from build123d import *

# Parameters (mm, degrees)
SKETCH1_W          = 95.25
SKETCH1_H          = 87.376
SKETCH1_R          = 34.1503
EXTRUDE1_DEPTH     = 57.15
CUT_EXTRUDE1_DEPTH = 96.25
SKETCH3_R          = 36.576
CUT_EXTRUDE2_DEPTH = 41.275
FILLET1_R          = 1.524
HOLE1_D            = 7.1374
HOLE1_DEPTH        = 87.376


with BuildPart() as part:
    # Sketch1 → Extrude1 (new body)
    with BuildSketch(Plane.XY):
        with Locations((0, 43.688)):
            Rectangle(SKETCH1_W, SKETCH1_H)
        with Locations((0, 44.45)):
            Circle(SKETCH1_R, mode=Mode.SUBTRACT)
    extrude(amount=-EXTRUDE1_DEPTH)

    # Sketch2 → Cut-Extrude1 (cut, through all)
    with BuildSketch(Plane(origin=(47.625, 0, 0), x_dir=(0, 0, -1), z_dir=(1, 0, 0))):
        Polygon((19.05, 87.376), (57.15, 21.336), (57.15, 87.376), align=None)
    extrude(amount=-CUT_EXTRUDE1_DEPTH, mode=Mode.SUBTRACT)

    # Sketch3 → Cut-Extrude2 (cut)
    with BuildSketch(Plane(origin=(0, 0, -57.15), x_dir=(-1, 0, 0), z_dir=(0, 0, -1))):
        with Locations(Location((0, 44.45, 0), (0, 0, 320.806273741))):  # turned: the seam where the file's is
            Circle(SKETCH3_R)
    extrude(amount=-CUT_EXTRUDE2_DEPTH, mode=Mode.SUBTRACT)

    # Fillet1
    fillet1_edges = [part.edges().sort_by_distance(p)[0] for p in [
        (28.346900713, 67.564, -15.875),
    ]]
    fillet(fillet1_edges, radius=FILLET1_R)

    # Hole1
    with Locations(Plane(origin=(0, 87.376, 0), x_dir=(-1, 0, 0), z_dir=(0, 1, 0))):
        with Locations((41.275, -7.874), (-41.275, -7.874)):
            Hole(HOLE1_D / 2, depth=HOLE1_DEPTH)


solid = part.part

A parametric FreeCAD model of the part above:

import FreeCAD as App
import Part
import Sketcher
Q = App.Units.Quantity


def edges_at(feature, points):
    """Names of the edges that pass closest to the given points."""
    edges = feature.Shape.Edges
    near = lambda p: min(range(len(edges)), key=lambda i: edges[i].distToShape(Part.Vertex(*p))[0])
    return sorted({f"Edge{near(p) + 1}" for p in points})

doc = App.newDocument("Part")
body = doc.addObject("PartDesign::Body", "Body")

sketch1 = body.newObject("Sketcher::SketchObject", "Sketch")
sketch1.AttachmentSupport = (doc.getObject("XY_Plane"), [""])
sketch1.MapMode = "FlatFace"
sketch1.addGeometry(Part.LineSegment(App.Vector(-48, 87, 0), App.Vector(-48, 0, 0)), False)
sketch1.addGeometry(Part.LineSegment(App.Vector(-48, 0, 0), App.Vector(48, 0, 0)), False)
sketch1.addGeometry(Part.LineSegment(App.Vector(48, 0, 0), App.Vector(48, 87, 0)), False)
sketch1.addGeometry(Part.LineSegment(App.Vector(48, 87, 0), App.Vector(-48, 87, 0)), False)
sketch1.addGeometry(Part.Circle(App.Vector(0, 44, 0), App.Vector(0, 0, 1), 34), False)
sketch1.addConstraint(Sketcher.Constraint("Coincident", 0, 2, 1, 1))
sketch1.addConstraint(Sketcher.Constraint("Coincident", 1, 2, 2, 1))
sketch1.addConstraint(Sketcher.Constraint("Coincident", 2, 2, 3, 1))
sketch1.addConstraint(Sketcher.Constraint("Coincident", 3, 2, 0, 1))
sketch1.addConstraint(Sketcher.Constraint("Vertical", 0))
sketch1.addConstraint(Sketcher.Constraint("Horizontal", 1))
sketch1.addConstraint(Sketcher.Constraint("Vertical", 2))
sketch1.addConstraint(Sketcher.Constraint("Horizontal", 3))
sketch1.addConstraint(Sketcher.Constraint("Symmetric", 0, 2, 1, 2, -1, 1))
sketch1.addConstraint(Sketcher.Constraint("PointOnObject", 4, 3, -2))
sketch1.addConstraint(Sketcher.Constraint("Diameter", 4, Q("2.689 in")))
sketch1.addConstraint(Sketcher.Constraint("DistanceX", 1, 1, 1, 2, Q("3.75 in")))
sketch1.addConstraint(Sketcher.Constraint("DistanceY", 0, 2, 0, 1, Q("3.44 in")))
sketch1.addConstraint(Sketcher.Constraint("DistanceY", -1, 1, 4, 3, Q("1.75 in")))
pad1 = body.newObject("PartDesign::Pad", "Pad")
pad1.Profile = sketch1
pad1.Length = Q("2.25 in")
pad1.Reversed = True

sketch2 = body.newObject("Sketcher::SketchObject", "Sketch001")
sketch2.AttachmentSupport = (doc.getObject("YZ_Plane"), [""])
sketch2.MapMode = "FlatFace"
sketch2.AttachmentOffset = App.Placement(App.Vector(0, 0, 1.875 * 25.4), App.Rotation())
sketch2.addGeometry(Part.LineSegment(App.Vector(87, -19, 0), App.Vector(21, -57, 0)), False)
sketch2.addGeometry(Part.LineSegment(App.Vector(21, -57, 0), App.Vector(87, -57, 0)), False)
sketch2.addGeometry(Part.LineSegment(App.Vector(87, -57, 0), App.Vector(87, -19, 0)), False)
sketch2.addConstraint(Sketcher.Constraint("Coincident", 0, 2, 1, 1))
sketch2.addConstraint(Sketcher.Constraint("Coincident", 1, 2, 2, 1))
sketch2.addConstraint(Sketcher.Constraint("Coincident", 2, 2, 0, 1))
sketch2.addConstraint(Sketcher.Constraint("Horizontal", 1))
sketch2.addConstraint(Sketcher.Constraint("Vertical", 2))
sketch2.addConstraint(Sketcher.Constraint("DistanceX", 1, 1, 1, 2, Q("2.6 in")))
sketch2.addConstraint(Sketcher.Constraint("DistanceY", 2, 1, 2, 2, Q("1.5 in")))
sketch2.addConstraint(Sketcher.Constraint("DistanceX", -1, 1, 0, 2, Q("0.84 in")))
sketch2.addConstraint(Sketcher.Constraint("DistanceY", 0, 2, -1, 1, Q("2.25 in")))
pocket1 = body.newObject("PartDesign::Pocket", "Pocket")
pocket1.Profile = sketch2
pocket1.Type = "ThroughAll"

sketch3 = body.newObject("Sketcher::SketchObject", "Sketch002")
sketch3.AttachmentSupport = (doc.getObject("XY_Plane"), [""])
sketch3.MapMode = "FlatFace"
sketch3.AttachmentOffset = App.Placement(App.Vector(0, 0, -2.25 * 25.4), App.Rotation())
sketch3.addGeometry(Part.Circle(App.Vector(0, 44, 0), App.Vector(0, 0, 1), 37), False)
sketch3.addConstraint(Sketcher.Constraint("PointOnObject", 0, 3, -2))
sketch3.addConstraint(Sketcher.Constraint("Diameter", 0, Q("2.88 in")))
sketch3.addConstraint(Sketcher.Constraint("DistanceY", -1, 1, 0, 3, Q("1.75 in")))
pocket2 = body.newObject("PartDesign::Pocket", "Pocket001")
pocket2.Profile = sketch3
pocket2.Length = Q("1.625 in")
pocket2.Reversed = True
doc.recompute()

fillet = body.newObject("PartDesign::Fillet", "Fillet")
fillet.Base = (pocket2, edges_at(pocket2, [(28.347, 67.564, -15.875)]))
fillet.Radius = Q("0.06 in")

sketch4 = body.newObject("Sketcher::SketchObject", "Sketch003")
sketch4.AttachmentSupport = (doc.getObject("XZ_Plane"), [""])
sketch4.MapMode = "FlatFace"
sketch4.AttachmentOffset = App.Placement(App.Vector(0, 0, -3.44 * 25.4), App.Rotation())
sketch4.addGeometry(Part.Circle(App.Vector(-41.3, -7.9, 0), App.Vector(0, 0, 1), 3.6), False)
sketch4.addGeometry(Part.Circle(App.Vector(41.3, -7.9, 0), App.Vector(0, 0, 1), 3.6), False)
sketch4.addConstraint(Sketcher.Constraint("Equal", 0, 1))
sketch4.addConstraint(Sketcher.Constraint("Symmetric", 0, 3, 1, 3, -2))
sketch4.addConstraint(Sketcher.Constraint("Diameter", 0, Q("0.281 in")))
sketch4.addConstraint(Sketcher.Constraint("DistanceY", 0, 3, -1, 1, Q("0.31 in")))
sketch4.addConstraint(Sketcher.Constraint("DistanceX", 0, 3, 1, 3, Q("3.25 in")))
doc.recompute()
hole = body.newObject("PartDesign::Hole", "Hole")
hole.Profile = sketch4
hole.ThreadType = "None"
hole.Diameter = Q("0.281 in")
hole.DepthType = "Dimension"
hole.Depth = Q("3.44 in")
hole.DrillPoint = "Flat"
hole.Reversed = True

doc.recompute()
